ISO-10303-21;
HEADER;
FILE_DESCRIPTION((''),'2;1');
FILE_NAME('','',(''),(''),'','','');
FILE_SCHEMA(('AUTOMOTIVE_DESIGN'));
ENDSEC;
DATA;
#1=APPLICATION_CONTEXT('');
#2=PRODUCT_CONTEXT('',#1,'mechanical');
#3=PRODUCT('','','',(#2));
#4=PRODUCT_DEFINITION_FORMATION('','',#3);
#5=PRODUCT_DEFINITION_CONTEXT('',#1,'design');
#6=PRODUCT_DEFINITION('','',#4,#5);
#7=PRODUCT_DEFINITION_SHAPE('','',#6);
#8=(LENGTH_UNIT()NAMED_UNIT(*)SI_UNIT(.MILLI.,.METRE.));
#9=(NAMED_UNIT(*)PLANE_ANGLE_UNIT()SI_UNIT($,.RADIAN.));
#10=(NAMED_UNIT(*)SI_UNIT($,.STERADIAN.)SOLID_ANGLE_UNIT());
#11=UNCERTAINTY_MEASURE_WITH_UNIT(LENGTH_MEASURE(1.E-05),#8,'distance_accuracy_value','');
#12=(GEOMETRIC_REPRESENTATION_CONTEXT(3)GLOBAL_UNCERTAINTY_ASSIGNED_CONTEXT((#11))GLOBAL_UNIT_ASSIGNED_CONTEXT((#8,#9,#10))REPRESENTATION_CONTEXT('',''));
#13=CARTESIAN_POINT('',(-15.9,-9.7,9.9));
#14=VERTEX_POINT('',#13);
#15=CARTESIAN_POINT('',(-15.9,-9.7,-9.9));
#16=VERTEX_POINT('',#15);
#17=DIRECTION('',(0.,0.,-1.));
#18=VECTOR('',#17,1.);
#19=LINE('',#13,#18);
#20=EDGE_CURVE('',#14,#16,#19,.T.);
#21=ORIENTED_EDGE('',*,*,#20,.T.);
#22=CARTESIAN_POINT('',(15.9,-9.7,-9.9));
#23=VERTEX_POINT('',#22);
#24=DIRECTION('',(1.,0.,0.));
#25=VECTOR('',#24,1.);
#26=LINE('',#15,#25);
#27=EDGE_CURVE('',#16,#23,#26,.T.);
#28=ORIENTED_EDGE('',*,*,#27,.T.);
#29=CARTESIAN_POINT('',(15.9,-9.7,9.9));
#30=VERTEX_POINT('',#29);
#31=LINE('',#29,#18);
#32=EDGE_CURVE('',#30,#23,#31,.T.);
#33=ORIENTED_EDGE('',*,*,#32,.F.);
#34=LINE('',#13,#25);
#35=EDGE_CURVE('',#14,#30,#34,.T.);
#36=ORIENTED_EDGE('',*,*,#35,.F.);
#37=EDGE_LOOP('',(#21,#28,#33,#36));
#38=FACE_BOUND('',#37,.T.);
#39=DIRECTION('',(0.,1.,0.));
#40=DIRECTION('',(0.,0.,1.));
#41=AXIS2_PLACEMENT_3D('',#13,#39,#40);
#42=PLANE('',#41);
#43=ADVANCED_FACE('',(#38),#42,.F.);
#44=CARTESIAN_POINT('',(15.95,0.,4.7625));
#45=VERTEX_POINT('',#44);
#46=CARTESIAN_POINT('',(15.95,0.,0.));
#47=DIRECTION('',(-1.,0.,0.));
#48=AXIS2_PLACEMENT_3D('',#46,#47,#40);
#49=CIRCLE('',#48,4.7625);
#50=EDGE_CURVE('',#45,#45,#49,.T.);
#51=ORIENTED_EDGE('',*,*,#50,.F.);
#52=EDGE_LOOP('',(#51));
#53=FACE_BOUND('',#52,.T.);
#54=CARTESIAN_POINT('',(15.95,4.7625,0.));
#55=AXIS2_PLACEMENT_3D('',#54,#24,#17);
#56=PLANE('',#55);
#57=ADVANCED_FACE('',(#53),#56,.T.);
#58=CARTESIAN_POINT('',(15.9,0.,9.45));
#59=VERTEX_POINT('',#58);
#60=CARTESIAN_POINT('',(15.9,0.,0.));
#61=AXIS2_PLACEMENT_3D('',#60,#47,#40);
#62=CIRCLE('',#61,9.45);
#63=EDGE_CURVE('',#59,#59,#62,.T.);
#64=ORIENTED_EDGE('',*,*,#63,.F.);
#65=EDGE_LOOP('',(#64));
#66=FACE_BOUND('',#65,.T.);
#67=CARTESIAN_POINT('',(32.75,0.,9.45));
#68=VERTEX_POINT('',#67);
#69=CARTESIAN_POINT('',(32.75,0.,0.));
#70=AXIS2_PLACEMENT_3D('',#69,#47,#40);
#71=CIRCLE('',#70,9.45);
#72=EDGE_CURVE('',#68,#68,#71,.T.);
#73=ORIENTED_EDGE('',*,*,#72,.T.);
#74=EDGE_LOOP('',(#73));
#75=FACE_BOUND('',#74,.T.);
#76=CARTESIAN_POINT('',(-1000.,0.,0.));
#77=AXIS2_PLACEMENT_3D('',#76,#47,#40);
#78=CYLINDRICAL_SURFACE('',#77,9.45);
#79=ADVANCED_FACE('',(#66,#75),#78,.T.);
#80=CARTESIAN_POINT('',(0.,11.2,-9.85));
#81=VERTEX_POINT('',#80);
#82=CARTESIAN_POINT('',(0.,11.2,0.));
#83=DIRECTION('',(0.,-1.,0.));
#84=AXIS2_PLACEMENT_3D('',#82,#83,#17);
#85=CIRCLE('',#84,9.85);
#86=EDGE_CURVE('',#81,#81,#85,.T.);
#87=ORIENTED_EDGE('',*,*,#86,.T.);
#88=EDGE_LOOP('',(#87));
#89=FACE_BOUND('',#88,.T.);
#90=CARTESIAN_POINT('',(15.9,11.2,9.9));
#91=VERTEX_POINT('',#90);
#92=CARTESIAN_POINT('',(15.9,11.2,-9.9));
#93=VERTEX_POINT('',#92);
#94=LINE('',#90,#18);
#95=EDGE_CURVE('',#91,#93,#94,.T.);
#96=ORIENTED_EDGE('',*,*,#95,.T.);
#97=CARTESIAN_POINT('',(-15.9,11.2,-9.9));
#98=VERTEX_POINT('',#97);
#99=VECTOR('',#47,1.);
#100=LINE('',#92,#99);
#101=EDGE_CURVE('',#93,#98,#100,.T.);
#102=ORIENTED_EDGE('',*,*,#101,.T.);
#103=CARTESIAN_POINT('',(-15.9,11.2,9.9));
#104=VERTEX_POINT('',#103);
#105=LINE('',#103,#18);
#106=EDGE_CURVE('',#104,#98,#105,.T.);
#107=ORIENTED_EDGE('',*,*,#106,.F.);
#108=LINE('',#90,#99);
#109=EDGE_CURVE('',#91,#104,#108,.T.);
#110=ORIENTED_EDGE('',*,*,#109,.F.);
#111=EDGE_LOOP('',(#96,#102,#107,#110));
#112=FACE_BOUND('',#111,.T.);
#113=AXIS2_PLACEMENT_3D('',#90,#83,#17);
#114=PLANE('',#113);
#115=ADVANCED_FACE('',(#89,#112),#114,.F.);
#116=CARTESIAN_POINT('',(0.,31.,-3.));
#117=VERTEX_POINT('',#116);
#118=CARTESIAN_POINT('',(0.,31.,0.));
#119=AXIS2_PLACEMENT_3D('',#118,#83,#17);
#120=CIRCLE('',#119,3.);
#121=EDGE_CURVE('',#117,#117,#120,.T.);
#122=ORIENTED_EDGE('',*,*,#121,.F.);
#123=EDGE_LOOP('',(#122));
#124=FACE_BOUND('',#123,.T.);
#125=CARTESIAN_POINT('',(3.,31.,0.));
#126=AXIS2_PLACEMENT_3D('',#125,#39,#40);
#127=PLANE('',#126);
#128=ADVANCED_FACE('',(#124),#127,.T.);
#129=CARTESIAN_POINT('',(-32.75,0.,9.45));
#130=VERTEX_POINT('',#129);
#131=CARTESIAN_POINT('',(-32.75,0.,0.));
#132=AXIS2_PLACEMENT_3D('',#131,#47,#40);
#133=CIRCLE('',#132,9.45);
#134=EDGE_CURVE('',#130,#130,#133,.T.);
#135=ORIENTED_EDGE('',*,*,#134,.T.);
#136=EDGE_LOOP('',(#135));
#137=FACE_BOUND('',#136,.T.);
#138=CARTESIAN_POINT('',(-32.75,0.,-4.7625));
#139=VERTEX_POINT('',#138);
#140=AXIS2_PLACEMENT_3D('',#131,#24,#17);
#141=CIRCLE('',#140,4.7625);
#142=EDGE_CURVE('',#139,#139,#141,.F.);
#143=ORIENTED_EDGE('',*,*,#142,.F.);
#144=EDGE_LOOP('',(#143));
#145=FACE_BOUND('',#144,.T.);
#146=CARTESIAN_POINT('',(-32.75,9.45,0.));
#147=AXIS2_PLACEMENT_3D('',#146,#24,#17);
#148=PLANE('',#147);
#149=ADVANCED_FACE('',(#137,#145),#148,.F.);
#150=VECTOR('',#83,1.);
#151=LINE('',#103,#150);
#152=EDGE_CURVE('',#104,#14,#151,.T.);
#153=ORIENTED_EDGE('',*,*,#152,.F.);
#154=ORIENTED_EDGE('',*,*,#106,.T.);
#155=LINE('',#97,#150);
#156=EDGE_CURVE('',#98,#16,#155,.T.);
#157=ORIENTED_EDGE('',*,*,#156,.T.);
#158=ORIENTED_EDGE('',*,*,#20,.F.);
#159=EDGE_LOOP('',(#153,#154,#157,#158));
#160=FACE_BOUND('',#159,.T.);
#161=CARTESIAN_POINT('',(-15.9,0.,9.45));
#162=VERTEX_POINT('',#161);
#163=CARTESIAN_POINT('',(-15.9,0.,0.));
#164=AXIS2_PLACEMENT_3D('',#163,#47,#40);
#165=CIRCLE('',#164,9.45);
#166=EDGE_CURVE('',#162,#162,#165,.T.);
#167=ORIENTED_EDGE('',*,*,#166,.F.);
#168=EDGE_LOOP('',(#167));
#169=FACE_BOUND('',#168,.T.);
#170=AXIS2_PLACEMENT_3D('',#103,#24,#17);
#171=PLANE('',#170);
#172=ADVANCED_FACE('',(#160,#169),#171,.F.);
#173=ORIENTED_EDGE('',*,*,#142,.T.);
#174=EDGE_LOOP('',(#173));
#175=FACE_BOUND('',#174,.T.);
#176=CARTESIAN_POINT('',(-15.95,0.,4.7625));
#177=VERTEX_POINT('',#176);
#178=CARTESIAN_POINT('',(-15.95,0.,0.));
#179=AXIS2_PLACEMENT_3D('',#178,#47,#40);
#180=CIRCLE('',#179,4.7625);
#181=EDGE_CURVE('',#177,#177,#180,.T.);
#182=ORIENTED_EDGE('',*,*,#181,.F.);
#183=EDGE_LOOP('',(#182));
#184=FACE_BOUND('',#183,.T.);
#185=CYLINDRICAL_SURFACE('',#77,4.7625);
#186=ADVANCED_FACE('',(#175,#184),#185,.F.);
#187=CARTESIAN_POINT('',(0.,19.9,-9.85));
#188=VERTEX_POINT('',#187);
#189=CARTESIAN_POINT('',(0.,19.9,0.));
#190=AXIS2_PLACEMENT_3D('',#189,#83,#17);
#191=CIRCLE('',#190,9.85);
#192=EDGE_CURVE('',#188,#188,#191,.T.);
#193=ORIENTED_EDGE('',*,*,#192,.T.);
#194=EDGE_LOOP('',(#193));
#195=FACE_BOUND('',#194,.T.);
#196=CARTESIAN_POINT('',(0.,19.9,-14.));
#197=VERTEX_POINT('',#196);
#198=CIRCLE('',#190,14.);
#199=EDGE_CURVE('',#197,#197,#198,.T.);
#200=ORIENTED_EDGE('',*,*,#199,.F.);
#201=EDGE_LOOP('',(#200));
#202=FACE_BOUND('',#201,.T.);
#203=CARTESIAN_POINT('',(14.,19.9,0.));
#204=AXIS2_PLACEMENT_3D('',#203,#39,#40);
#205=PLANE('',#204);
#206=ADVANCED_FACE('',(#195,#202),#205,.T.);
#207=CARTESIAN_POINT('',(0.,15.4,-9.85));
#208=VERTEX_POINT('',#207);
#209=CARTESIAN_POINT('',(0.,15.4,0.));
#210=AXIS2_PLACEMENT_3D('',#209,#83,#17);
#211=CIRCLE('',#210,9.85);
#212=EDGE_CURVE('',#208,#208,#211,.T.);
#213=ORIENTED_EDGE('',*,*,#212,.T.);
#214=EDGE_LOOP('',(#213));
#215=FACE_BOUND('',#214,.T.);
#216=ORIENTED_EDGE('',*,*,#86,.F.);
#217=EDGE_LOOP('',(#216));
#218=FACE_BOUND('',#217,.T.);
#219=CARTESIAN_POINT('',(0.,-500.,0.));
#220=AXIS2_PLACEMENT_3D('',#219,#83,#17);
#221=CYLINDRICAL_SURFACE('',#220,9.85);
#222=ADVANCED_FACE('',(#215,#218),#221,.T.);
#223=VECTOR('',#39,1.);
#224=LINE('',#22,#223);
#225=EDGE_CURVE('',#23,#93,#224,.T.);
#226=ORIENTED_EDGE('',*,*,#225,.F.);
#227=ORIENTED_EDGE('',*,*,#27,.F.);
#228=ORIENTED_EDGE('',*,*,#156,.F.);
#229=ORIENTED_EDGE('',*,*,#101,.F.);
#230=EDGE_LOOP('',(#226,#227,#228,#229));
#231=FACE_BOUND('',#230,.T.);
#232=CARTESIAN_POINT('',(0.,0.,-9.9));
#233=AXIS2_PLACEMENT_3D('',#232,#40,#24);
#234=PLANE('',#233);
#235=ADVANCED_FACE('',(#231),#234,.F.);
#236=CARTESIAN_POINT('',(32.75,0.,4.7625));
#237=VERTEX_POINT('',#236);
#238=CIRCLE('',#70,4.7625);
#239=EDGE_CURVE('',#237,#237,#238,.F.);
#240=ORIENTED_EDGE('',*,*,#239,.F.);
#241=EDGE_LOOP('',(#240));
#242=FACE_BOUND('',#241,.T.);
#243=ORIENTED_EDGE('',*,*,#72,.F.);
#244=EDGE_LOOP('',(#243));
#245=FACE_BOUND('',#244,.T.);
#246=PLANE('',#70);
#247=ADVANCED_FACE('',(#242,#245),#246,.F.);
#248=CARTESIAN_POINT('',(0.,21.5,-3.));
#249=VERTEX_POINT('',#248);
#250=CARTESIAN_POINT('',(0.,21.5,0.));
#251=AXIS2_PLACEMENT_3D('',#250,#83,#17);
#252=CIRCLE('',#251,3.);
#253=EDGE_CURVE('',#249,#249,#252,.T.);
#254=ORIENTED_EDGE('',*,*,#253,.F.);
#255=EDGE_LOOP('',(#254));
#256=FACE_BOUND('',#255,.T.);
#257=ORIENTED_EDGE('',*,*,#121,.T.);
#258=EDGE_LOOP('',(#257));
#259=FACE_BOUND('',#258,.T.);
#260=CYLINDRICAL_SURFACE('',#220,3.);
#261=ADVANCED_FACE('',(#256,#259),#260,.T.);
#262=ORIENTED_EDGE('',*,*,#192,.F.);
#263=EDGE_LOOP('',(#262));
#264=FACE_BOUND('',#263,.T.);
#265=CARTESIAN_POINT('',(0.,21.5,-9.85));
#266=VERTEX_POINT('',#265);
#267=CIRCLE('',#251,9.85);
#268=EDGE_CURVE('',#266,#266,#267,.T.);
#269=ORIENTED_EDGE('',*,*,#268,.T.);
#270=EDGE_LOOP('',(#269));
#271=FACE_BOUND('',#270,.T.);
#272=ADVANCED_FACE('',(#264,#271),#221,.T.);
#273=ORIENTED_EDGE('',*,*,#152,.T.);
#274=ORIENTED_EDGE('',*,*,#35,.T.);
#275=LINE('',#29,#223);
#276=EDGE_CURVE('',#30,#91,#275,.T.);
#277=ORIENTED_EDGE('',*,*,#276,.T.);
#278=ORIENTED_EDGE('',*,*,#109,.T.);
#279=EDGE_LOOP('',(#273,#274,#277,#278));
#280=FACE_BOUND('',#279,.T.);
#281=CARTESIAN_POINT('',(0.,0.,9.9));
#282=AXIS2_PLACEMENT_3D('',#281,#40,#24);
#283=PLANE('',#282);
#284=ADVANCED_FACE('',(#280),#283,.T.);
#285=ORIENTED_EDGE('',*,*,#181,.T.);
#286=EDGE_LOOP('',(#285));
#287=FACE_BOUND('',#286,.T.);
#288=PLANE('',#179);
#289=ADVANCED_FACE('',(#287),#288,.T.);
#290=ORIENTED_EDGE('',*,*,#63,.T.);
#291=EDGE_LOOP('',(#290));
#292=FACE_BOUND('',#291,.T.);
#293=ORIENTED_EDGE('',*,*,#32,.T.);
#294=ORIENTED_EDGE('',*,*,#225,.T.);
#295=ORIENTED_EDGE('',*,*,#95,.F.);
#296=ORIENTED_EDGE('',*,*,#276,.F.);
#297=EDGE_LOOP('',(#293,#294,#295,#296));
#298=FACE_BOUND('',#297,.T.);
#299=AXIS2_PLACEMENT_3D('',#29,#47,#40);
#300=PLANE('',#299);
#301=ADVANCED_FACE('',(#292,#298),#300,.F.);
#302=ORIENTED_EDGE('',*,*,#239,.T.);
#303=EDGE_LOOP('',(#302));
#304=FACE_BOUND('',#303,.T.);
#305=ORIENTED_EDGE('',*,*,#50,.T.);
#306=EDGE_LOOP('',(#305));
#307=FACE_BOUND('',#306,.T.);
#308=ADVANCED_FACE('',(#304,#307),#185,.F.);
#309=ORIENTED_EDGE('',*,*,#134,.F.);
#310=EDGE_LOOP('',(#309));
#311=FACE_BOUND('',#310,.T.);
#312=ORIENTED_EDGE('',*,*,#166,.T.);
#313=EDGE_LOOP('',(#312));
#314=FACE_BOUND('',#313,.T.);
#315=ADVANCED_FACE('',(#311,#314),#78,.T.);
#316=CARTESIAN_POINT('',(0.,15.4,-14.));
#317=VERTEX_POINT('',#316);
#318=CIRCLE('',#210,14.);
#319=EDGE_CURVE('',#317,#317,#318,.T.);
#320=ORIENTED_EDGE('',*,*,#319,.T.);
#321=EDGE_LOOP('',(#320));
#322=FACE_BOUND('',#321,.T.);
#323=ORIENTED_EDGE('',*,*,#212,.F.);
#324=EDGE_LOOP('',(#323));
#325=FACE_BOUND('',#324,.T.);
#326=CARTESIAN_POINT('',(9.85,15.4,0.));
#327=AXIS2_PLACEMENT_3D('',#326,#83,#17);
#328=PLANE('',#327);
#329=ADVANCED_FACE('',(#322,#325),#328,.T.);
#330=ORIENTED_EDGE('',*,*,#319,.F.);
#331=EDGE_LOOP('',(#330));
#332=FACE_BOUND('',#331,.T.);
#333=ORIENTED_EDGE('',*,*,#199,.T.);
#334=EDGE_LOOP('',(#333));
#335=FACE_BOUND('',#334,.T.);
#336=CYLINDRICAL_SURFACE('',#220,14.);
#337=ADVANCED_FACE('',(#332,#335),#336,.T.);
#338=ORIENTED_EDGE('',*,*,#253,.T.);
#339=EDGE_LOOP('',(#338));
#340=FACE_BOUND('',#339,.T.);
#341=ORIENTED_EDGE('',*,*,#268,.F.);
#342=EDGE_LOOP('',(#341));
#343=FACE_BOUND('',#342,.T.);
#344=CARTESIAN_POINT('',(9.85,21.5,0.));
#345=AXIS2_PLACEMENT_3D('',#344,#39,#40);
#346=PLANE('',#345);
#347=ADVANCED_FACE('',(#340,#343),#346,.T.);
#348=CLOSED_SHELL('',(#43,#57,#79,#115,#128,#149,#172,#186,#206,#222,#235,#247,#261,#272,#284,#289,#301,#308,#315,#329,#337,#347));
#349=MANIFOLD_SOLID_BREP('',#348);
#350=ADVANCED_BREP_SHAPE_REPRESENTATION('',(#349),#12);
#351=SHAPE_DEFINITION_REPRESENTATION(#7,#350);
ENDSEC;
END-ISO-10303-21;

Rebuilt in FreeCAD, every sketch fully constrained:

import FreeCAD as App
import Part
import Sketcher
from FreeCAD import Vector
Q = App.Units.Quantity


def add_polygon(sketch, points):
    """Adds a closed chain of lines whose ends are joined by coincident constraints."""
    first, n = sketch.GeometryCount, len(points)
    for a, b in zip(points, points[1:] + points[:1]):
        sketch.addGeometry(Part.LineSegment(App.Vector(*a, 0), App.Vector(*b, 0)), False)
    for i in range(n):
        sketch.addConstraint(Sketcher.Constraint("Coincident", first + i, 2, first + (i + 1) % n, 1))

doc = App.newDocument("Part")
body = doc.addObject("PartDesign::Body", "Body")

# Sketch on XY plane
sketch1 = body.newObject("Sketcher::SketchObject", "Sketch")
sketch1.AttachmentSupport = (doc.getObject("XY_Plane"), [""])
sketch1.MapMode = "FlatFace"
add_polygon(sketch1, [(-15.9, 11.2), (-15.9, -9.7), (15.9, -9.7), (15.9, 11.2)])  # lines 0-3
sketch1.addConstraint([
    Sketcher.Constraint("Vertical", 0),
    Sketcher.Constraint("Horizontal", 1),
    Sketcher.Constraint("Vertical", 2),
    Sketcher.Constraint("Horizontal", 3),
    Sketcher.Constraint("DistanceX", 1, 1, 1, 2, Q("31.8 mm")),
    Sketcher.Constraint("DistanceY", 0, 2, 0, 1, Q("20.9 mm")),
    Sketcher.Constraint("DistanceX", 0, 2, -1, 1, Q("15.9 mm")),
    Sketcher.Constraint("DistanceY", 0, 2, -1, 1, Q("9.7 mm")),
])
pad1 = body.newObject("PartDesign::Pad", "Pad")
pad1.Profile = sketch1
pad1.Length = 19.8
pad1.Midplane = True

# Sketch on XY plane
sketch2 = body.newObject("Sketcher::SketchObject", "Sketch001")
sketch2.AttachmentSupport = (doc.getObject("XY_Plane"), [""])
sketch2.MapMode = "FlatFace"
add_polygon(sketch2, [(15.9, 9.45), (15.9, 0), (32.75, 0), (32.75, 9.45)])  # lines 0-3
sketch2.addConstraint([
    Sketcher.Constraint("Vertical", 0),
    Sketcher.Constraint("Horizontal", 1),
    Sketcher.Constraint("Vertical", 2),
    Sketcher.Constraint("Horizontal", 3),
    Sketcher.Constraint("PointOnObject", 0, 2, -1),
    Sketcher.Constraint("DistanceX", 1, 1, 1, 2, Q("16.85 mm")),
    Sketcher.Constraint("DistanceY", 0, 2, 0, 1, Q("9.45 mm")),
    Sketcher.Constraint("DistanceX", -1, 1, 0, 2, Q("15.9 mm")),
])
revolution = body.newObject("PartDesign::Revolution", "Revolution")
revolution.Profile = sketch2
revolution.ReferenceAxis = (sketch2, ["H_Axis"])
revolution.Angle = 360

# Sketch on XY plane
sketch3 = body.newObject("Sketcher::SketchObject", "Sketch002")
sketch3.AttachmentSupport = (doc.getObject("XY_Plane"), [""])
sketch3.MapMode = "FlatFace"
add_polygon(sketch3, [(-32.75, 9.45), (-32.75, 0), (-15.9, 0), (-15.9, 9.45)])  # lines 0-3
sketch3.addConstraint([
    Sketcher.Constraint("Vertical", 0),
    Sketcher.Constraint("Horizontal", 1),
    Sketcher.Constraint("Vertical", 2),
    Sketcher.Constraint("Horizontal", 3),
    Sketcher.Constraint("PointOnObject", 0, 2, -1),
    Sketcher.Constraint("DistanceX", 1, 1, 1, 2, Q("16.85 mm")),
    Sketcher.Constraint("DistanceY", 0, 2, 0, 1, Q("9.45 mm")),
    Sketcher.Constraint("DistanceX", 1, 2, -1, 1, Q("15.9 mm")),
])
revolution2 = body.newObject("PartDesign::Revolution", "Revolution001")
revolution2.Profile = sketch3
revolution2.ReferenceAxis = (sketch3, ["H_Axis"])
revolution2.Angle = 360

# Sketch on XY plane
sketch4 = body.newObject("Sketcher::SketchObject", "Sketch003")
sketch4.AttachmentSupport = (doc.getObject("XY_Plane"), [""])
sketch4.MapMode = "FlatFace"
add_polygon(sketch4, [(15.95, 4.7625), (15.95, 0), (33.75, 0), (33.75, 4.7625)])  # lines 0-3
sketch4.addConstraint([
    Sketcher.Constraint("Vertical", 0),
    Sketcher.Constraint("Horizontal", 1),
    Sketcher.Constraint("Vertical", 2),
    Sketcher.Constraint("Horizontal", 3),
    Sketcher.Constraint("PointOnObject", 0, 2, -1),
    Sketcher.Constraint("DistanceX", 1, 1, 1, 2, Q("17.8 mm")),
    Sketcher.Constraint("DistanceX", -1, 1, 0, 2, Q("15.95 mm")),
    Sketcher.Constraint("DistanceY", 0, 2, 0, 1, Q("4.7625 mm")),
])
groove = body.newObject("PartDesign::Groove", "Groove")
groove.Profile = sketch4
groove.ReferenceAxis = (sketch4, ["H_Axis"])
groove.Angle = 360

# Sketch on XY plane
sketch5 = body.newObject("Sketcher::SketchObject", "Sketch004")
sketch5.AttachmentSupport = (doc.getObject("XY_Plane"), [""])
sketch5.MapMode = "FlatFace"
add_polygon(sketch5, [(-33.75, 4.7625), (-33.75, 0), (-15.95, 0), (-15.95, 4.7625)])  # lines 0-3
sketch5.addConstraint([
    Sketcher.Constraint("Vertical", 0),
    Sketcher.Constraint("Horizontal", 1),
    Sketcher.Constraint("Vertical", 2),
    Sketcher.Constraint("Horizontal", 3),
    Sketcher.Constraint("PointOnObject", 0, 2, -1),
    Sketcher.Constraint("DistanceX", 1, 1, 1, 2, Q("17.8 mm")),
    Sketcher.Constraint("DistanceX", 0, 2, -1, 1, Q("33.75 mm")),
    Sketcher.Constraint("DistanceY", 0, 2, 0, 1, Q("4.7625 mm")),
])
groove2 = body.newObject("PartDesign::Groove", "Groove001")
groove2.Profile = sketch5
groove2.ReferenceAxis = (sketch5, ["H_Axis"])
groove2.Angle = 360

# Sketch on XY plane
sketch6 = body.newObject("Sketcher::SketchObject", "Sketch005")
sketch6.AttachmentSupport = (doc.getObject("XY_Plane"), [""])
sketch6.MapMode = "FlatFace"
add_polygon(sketch6, [(0, 11.2), (9.85, 11.2), (9.85, 15.4), (14, 15.4), (14, 19.9), (9.85, 19.9), (9.85, 21.5), (3, 21.5), (3, 31), (0, 31)])  # lines 0-9
sketch6.addConstraint([
    Sketcher.Constraint("Horizontal", 0),
    Sketcher.Constraint("Vertical", 1),
    Sketcher.Constraint("Horizontal", 2),
    Sketcher.Constraint("Vertical", 3),
    Sketcher.Constraint("Horizontal", 4),
    Sketcher.Constraint("Vertical", 5),
    Sketcher.Constraint("Horizontal", 6),
    Sketcher.Constraint("Vertical", 7),
    Sketcher.Constraint("Horizontal", 8),
    Sketcher.Constraint("Vertical", 9),
    Sketcher.Constraint("PointOnObject", 8, 2, -2),
    Sketcher.Constraint("Vertical", 1, 2, 4, 2),
    Sketcher.Constraint("DistanceX", 8, 2, 8, 1, Q("3 mm")),
    Sketcher.Constraint("DistanceY", 1, 1, 1, 2, Q("4.2 mm")),
    Sketcher.Constraint("DistanceY", 3, 1, 3, 2, Q("4.5 mm")),
    Sketcher.Constraint("DistanceY", 5, 1, 5, 2, Q("1.6 mm")),
    Sketcher.Constraint("DistanceY", 7, 1, 7, 2, Q("9.5 mm")),
    Sketcher.Constraint("DistanceX", -1, 1, 2, 2, Q("14 mm")),
    Sketcher.Constraint("DistanceY", -1, 1, 7, 2, Q("31 mm")),
    Sketcher.Constraint("DistanceX", 0, 1, 0, 2, Q("9.85 mm")),
])
revolution3 = body.newObject("PartDesign::Revolution", "Revolution002")
revolution3.Profile = sketch6
revolution3.ReferenceAxis = (sketch6, ["V_Axis"])
revolution3.Angle = 360

doc.recompute()
